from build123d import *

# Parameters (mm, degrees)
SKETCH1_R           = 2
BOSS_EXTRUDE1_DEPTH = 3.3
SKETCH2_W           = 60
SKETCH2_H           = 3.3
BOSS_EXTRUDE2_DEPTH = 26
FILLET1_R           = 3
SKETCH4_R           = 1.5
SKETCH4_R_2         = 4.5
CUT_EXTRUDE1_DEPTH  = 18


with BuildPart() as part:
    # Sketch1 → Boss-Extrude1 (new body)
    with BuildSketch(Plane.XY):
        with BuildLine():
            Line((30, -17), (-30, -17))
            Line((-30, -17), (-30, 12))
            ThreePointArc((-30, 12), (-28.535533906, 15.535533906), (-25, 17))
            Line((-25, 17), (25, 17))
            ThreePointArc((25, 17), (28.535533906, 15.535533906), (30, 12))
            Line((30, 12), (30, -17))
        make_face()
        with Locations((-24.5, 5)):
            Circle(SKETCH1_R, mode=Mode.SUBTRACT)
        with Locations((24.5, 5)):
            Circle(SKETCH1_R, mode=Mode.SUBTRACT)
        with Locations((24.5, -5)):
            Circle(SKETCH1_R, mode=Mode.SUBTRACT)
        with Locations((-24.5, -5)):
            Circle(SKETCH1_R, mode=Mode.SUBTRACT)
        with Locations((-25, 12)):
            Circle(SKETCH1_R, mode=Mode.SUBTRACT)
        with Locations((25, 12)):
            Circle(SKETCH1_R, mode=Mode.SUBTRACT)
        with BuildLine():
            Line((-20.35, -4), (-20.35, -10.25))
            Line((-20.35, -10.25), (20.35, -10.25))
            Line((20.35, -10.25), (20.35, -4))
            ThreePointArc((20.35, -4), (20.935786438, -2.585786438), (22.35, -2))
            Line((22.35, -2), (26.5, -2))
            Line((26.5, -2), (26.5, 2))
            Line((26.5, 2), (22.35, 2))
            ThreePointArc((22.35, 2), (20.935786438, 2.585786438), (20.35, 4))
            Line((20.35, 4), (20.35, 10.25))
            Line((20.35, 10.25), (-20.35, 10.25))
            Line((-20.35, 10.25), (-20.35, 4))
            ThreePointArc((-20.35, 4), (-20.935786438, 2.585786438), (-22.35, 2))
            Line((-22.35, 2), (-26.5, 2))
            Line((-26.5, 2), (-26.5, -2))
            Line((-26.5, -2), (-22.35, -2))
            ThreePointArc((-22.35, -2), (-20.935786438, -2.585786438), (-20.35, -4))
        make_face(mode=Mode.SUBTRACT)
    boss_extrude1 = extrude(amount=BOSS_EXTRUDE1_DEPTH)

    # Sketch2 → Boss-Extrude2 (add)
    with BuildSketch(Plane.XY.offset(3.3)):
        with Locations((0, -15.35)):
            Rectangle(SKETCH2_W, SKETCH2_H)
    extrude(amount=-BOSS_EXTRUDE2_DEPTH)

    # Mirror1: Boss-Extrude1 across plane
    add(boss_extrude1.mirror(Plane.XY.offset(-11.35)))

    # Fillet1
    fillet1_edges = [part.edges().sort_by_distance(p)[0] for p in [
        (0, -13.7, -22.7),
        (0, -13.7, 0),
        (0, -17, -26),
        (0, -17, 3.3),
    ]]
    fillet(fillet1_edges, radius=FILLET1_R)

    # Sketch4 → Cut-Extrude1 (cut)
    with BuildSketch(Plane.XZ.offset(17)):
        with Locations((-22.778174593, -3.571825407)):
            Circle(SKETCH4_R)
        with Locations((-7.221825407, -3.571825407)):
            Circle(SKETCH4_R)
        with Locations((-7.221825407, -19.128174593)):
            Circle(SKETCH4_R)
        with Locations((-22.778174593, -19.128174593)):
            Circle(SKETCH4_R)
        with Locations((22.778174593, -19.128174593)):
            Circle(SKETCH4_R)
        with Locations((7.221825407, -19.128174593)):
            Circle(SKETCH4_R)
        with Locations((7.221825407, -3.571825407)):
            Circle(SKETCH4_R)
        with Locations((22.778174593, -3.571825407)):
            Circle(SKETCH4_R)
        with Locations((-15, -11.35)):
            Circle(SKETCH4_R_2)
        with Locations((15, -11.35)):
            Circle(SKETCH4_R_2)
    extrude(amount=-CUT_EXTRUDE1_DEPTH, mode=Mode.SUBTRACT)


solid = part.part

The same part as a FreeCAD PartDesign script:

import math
import FreeCAD as App
import Part
import Sketcher
from FreeCAD import Vector
Q = App.Units.Quantity


def edges_at(feature, points):
    """Names of the edges that pass closest to the given points."""
    edges = feature.Shape.Edges
    near = lambda p: min(range(len(edges)), key=lambda i: edges[i].distToShape(Part.Vertex(*p))[0])
    return sorted({f"Edge{near(p) + 1}" for p in points})


def add_polygon(sketch, points):
    """Adds a closed chain of lines whose ends are joined by coincident constraints."""
    first, n = sketch.GeometryCount, len(points)
    for a, b in zip(points, points[1:] + points[:1]):
        sketch.addGeometry(Part.LineSegment(App.Vector(*a, 0), App.Vector(*b, 0)), False)
    for i in range(n):
        sketch.addConstraint(Sketcher.Constraint("Coincident", first + i, 2, first + (i + 1) % n, 1))

doc = App.newDocument("Part")
params = doc.addObject("Spreadsheet::Sheet", "Params")
for row, (alias, value) in enumerate([
    ("sketch1_diameter", "4 mm"),
    ("sketch1_radius", "5 mm"),
    ("sketch1_width", "60 mm"),
    ("sketch1_height", "29 mm"),
    ("sketch1_height2", "4 mm"),
    ("pad1_length", "3.3 mm"),
    ("sketch2_width", "60 mm"),
    ("sketch2_height", "3.3 mm"),
    ("pad2_length", "26 mm"),
    ("fillet_radius", "3 mm"),
    ("sketch3_diameter", "3 mm"),
    ("sketch3_diameter2", "9 mm"),
    ("pocket1_length", "18 mm"),
], start=1):
    params.set(f"A{row}", alias)
    params.set(f"B{row}", "=" + value)
    params.setAlias(f"B{row}", alias)

body = doc.addObject("PartDesign::Body", "Body")

sketch1 = body.newObject("Sketcher::SketchObject", "Sketch")
sketch1.AttachmentSupport = (doc.getObject("XY_Plane"), [""])
sketch1.MapMode = "FlatFace"
sketch1.addGeometry(Part.LineSegment(Vector(-30, -17, 0), Vector(30, -17, 0)), False)
sketch1.addGeometry(Part.LineSegment(Vector(30, -17, 0), Vector(30, 12, 0)), False)
sketch1.addGeometry(Part.ArcOfCircle(Part.Circle(Vector(25, 12, 0), Vector(0, 0, 1), 5), math.radians(0), math.radians(90)), False)
sketch1.addGeometry(Part.LineSegment(Vector(25, 17, 0), Vector(-25, 17, 0)), False)
sketch1.addGeometry(Part.ArcOfCircle(Part.Circle(Vector(-25, 12, 0), Vector(0, 0, 1), 5), math.radians(90), math.radians(180)), False)
sketch1.addGeometry(Part.LineSegment(Vector(-30, 12, 0), Vector(-30, -17, 0)), False)
sketch1.addGeometry(Part.Circle(Vector(24.5, -5, 0), Vector(0, 0, 1), 2), False)
sketch1.addGeometry(Part.Circle(Vector(-24.5, -5, 0), Vector(0, 0, 1), 2), False)
sketch1.addGeometry(Part.ArcOfCircle(Part.Circle(Vector(-22.35, -4, 0), Vector(0, 0, 1), 2), math.radians(0), math.radians(90)), False)
sketch1.addGeometry(Part.LineSegment(Vector(-22.35, -2, 0), Vector(-26.5, -2, 0)), False)
sketch1.addGeometry(Part.LineSegment(Vector(-26.5, -2, 0), Vector(-26.5, 2, 0)), False)
sketch1.addGeometry(Part.LineSegment(Vector(-26.5, 2, 0), Vector(-22.35, 2, 0)), False)
sketch1.addGeometry(Part.ArcOfCircle(Part.Circle(Vector(-22.35, 4, 0), Vector(0, 0, 1), 2), math.radians(-90), math.radians(0)), False)
sketch1.addGeometry(Part.LineSegment(Vector(-20.35, 4, 0), Vector(-20.35, 10.25, 0)), False)
sketch1.addGeometry(Part.LineSegment(Vector(-20.35, 10.25, 0), Vector(20.35, 10.25, 0)), False)
sketch1.addGeometry(Part.LineSegment(Vector(20.35, 10.25, 0), Vector(20.35, 4, 0)), False)
sketch1.addGeometry(Part.ArcOfCircle(Part.Circle(Vector(22.35, 4, 0), Vector(0, 0, 1), 2), math.radians(-180), math.radians(-90)), False)
sketch1.addGeometry(Part.LineSegment(Vector(22.35, 2, 0), Vector(26.5, 2, 0)), False)
sketch1.addGeometry(Part.LineSegment(Vector(26.5, 2, 0), Vector(26.5, -2, 0)), False)
sketch1.addGeometry(Part.LineSegment(Vector(26.5, -2, 0), Vector(22.35, -2, 0)), False)
sketch1.addGeometry(Part.ArcOfCircle(Part.Circle(Vector(22.35, -4, 0), Vector(0, 0, 1), 2), math.radians(90), math.radians(180)), False)
sketch1.addGeometry(Part.LineSegment(Vector(20.35, -4, 0), Vector(20.35, -10.25, 0)), False)
sketch1.addGeometry(Part.LineSegment(Vector(20.35, -10.25, 0), Vector(-20.35, -10.25, 0)), False)
sketch1.addGeometry(Part.LineSegment(Vector(-20.35, -10.25, 0), Vector(-20.35, -4, 0)), False)
sketch1.addGeometry(Part.Circle(Vector(24.5, 5, 0), Vector(0, 0, 1), 2), False)
sketch1.addGeometry(Part.Circle(Vector(25, 12, 0), Vector(0, 0, 1), 2), False)
sketch1.addGeometry(Part.Circle(Vector(-24.5, 5, 0), Vector(0, 0, 1), 2), False)
sketch1.addGeometry(Part.Circle(Vector(-25, 12, 0), Vector(0, 0, 1), 2), False)
sketch1.addConstraint(Sketcher.Constraint("Coincident", 0, 2, 1, 1))
sketch1.addConstraint(Sketcher.Constraint("Tangent", 1, 2, 2, 1))
sketch1.addConstraint(Sketcher.Constraint("Tangent", 2, 2, 3, 1))
sketch1.addConstraint(Sketcher.Constraint("Tangent", 3, 2, 4, 1))
sketch1.addConstraint(Sketcher.Constraint("Tangent", 4, 2, 5, 1))
sketch1.addConstraint(Sketcher.Constraint("Coincident", 5, 2, 0, 1))
sketch1.addConstraint(Sketcher.Constraint("Tangent", 8, 2, 9, 1))
sketch1.addConstraint(Sketcher.Constraint("Coincident", 9, 2, 10, 1))
sketch1.addConstraint(Sketcher.Constraint("Coincident", 10, 2, 11, 1))
sketch1.addConstraint(Sketcher.Constraint("Tangent", 11, 2, 12, 1))
sketch1.addConstraint(Sketcher.Constraint("Tangent", 12, 2, 13, 1))
sketch1.addConstraint(Sketcher.Constraint("Coincident", 13, 2, 14, 1))
sketch1.addConstraint(Sketcher.Constraint("Coincident", 14, 2, 15, 1))
sketch1.addConstraint(Sketcher.Constraint("Tangent", 15, 2, 16, 1))
sketch1.addConstraint(Sketcher.Constraint("Tangent", 16, 2, 17, 1))
sketch1.addConstraint(Sketcher.Constraint("Coincident", 17, 2, 18, 1))
sketch1.addConstraint(Sketcher.Constraint("Coincident", 18, 2, 19, 1))
sketch1.addConstraint(Sketcher.Constraint("Tangent", 19, 2, 20, 1))
sketch1.addConstraint(Sketcher.Constraint("Tangent", 20, 2, 21, 1))
sketch1.addConstraint(Sketcher.Constraint("Coincident", 21, 2, 22, 1))
sketch1.addConstraint(Sketcher.Constraint("Coincident", 22, 2, 23, 1))
sketch1.addConstraint(Sketcher.Constraint("Tangent", 23, 2, 8, 1))
sketch1.addConstraint(Sketcher.Constraint("Horizontal", 0))
sketch1.addConstraint(Sketcher.Constraint("Vertical", 1))
sketch1.addConstraint(Sketcher.Constraint("Horizontal", 3))
sketch1.addConstraint(Sketcher.Constraint("Vertical", 5))
sketch1.addConstraint(Sketcher.Constraint("Horizontal", 9))
sketch1.addConstraint(Sketcher.Constraint("Vertical", 10))
sketch1.addConstraint(Sketcher.Constraint("Horizontal", 11))
sketch1.addConstraint(Sketcher.Constraint("Vertical", 13))
sketch1.addConstraint(Sketcher.Constraint("Horizontal", 14))
sketch1.addConstraint(Sketcher.Constraint("Vertical", 15))
sketch1.addConstraint(Sketcher.Constraint("Horizontal", 17))
sketch1.addConstraint(Sketcher.Constraint("Vertical", 18))
sketch1.addConstraint(Sketcher.Constraint("Horizontal", 19))
sketch1.addConstraint(Sketcher.Constraint("Vertical", 21))
sketch1.addConstraint(Sketcher.Constraint("Horizontal", 22))
sketch1.addConstraint(Sketcher.Constraint("Vertical", 23))
sketch1.addConstraint(Sketcher.Constraint("Coincident", 25, 3, 2, 3))
sketch1.addConstraint(Sketcher.Constraint("Coincident", 27, 3, 4, 3))
sketch1.addConstraint(Sketcher.Constraint("Equal", 2, 4))
sketch1.addConstraint(Sketcher.Constraint("Equal", 6, 7))
sketch1.addConstraint(Sketcher.Constraint("Equal", 7, 8))
sketch1.addConstraint(Sketcher.Constraint("Equal", 8, 12))
sketch1.addConstraint(Sketcher.Constraint("Equal", 12, 16))
sketch1.addConstraint(Sketcher.Constraint("Equal", 16, 20))
sketch1.addConstraint(Sketcher.Constraint("Equal", 20, 24))
sketch1.addConstraint(Sketcher.Constraint("Equal", 24, 25))
sketch1.addConstraint(Sketcher.Constraint("Equal", 25, 26))
sketch1.addConstraint(Sketcher.Constraint("Equal", 26, 27))
sketch1.addConstraint(Sketcher.Constraint("Symmetric", 8, 3, 16, 3, -1, 1))
sketch1.addConstraint(Sketcher.Constraint("Symmetric", 12, 3, 20, 3, -1, 1))
sketch1.addConstraint(Sketcher.Constraint("Symmetric", 7, 3, 24, 3, -1, 1))
sketch1.addConstraint(Sketcher.Constraint("Symmetric", 6, 3, 26, 3, -1, 1))
sketch1.addConstraint(Sketcher.Constraint("Symmetric", 6, 3, 7, 3, -2))
sketch1.addConstraint(Sketcher.Constraint("Symmetric", 12, 3, 16, 3, -2))
sketch1.addConstraint(Sketcher.Constraint("Equal", 11, 17))
sketch1.addConstraint(Sketcher.Constraint("Equal", 15, 21))
sketch1.addConstraint(Sketcher.Constraint("Diameter", 6, Q("4 mm")))
sketch1.addConstraint(Sketcher.Constraint("Radius", 2, Q("5 mm")))
sketch1.addConstraint(Sketcher.Constraint("DistanceX", 0, 1, 0, 2, Q("60 mm")))
sketch1.addConstraint(Sketcher.Constraint("DistanceY", 1, 1, 1, 2, Q("29 mm")))
sketch1.addConstraint(Sketcher.Constraint("DistanceY", 10, 1, 10, 2, Q("4 mm")))
sketch1.addConstraint(Sketcher.Constraint("DistanceX", 14, 1, 14, 2, Q("40.7 mm")))
sketch1.addConstraint(Sketcher.Constraint("DistanceX", -1, 1, 2, 3, Q("25 mm")))
sketch1.addConstraint(Sketcher.Constraint("DistanceY", -1, 1, 2, 3, Q("12 mm")))
sketch1.addConstraint(Sketcher.Constraint("DistanceY", 6, 3, -1, 1, Q("5 mm")))
sketch1.addConstraint(Sketcher.Constraint("DistanceX", 7, 3, 6, 3, Q("49 mm")))
sketch1.addConstraint(Sketcher.Constraint("DistanceX", 9, 2, 7, 3, Q("2 mm")))
sketch1.addConstraint(Sketcher.Constraint("DistanceY", 13, 1, 13, 2, Q("6.25 mm")))
sketch1.setExpression("Constraints[58]", "Params.sketch1_diameter")
sketch1.setExpression("Constraints[59]", "Params.sketch1_radius")
sketch1.setExpression("Constraints[60]", "Params.sketch1_width")
sketch1.setExpression("Constraints[61]", "Params.sketch1_height")
sketch1.setExpression("Constraints[62]", "Params.sketch1_height2")
pad1 = body.newObject("PartDesign::Pad", "Pad")
pad1.Profile = sketch1
pad1.setExpression("Length", "Params.pad1_length")

sketch2 = body.newObject("Sketcher::SketchObject", "Sketch001")
sketch2.AttachmentSupport = (doc.getObject("XY_Plane"), [""])
sketch2.MapMode = "FlatFace"
sketch2.AttachmentOffset = App.Placement(Vector(0, 0, 3.3), App.Rotation())
add_polygon(sketch2, [(-30, -13.7), (-30, -17), (30, -17), (30, -13.7)])
sketch2.addConstraint(Sketcher.Constraint("Vertical", 0))
sketch2.addConstraint(Sketcher.Constraint("Horizontal", 1))
sketch2.addConstraint(Sketcher.Constraint("Vertical", 2))
sketch2.addConstraint(Sketcher.Constraint("Horizontal", 3))
sketch2.addConstraint(Sketcher.Constraint("DistanceX", 1, 1, 1, 2, Q("60 mm")))
sketch2.addConstraint(Sketcher.Constraint("DistanceY", 0, 2, 0, 1, Q("3.3 mm")))
sketch2.addConstraint(Sketcher.Constraint("DistanceX", 0, 2, -1, 1, Q("30 mm")))
sketch2.addConstraint(Sketcher.Constraint("DistanceY", 0, 2, -1, 1, Q("17 mm")))
sketch2.setExpression("Constraints[8]", "Params.sketch2_width")
sketch2.setExpression("Constraints[9]", "Params.sketch2_height")
pad2 = body.newObject("PartDesign::Pad", "Pad001")
pad2.Profile = sketch2
pad2.setExpression("Length", "Params.pad2_length")
pad2.Reversed = True
doc.recompute()

datumplane = body.newObject("PartDesign::Plane", "DatumPlane")
datumplane.AttachmentSupport = (doc.getObject("XY_Plane"), [""])
datumplane.MapMode = "FlatFace"
datumplane.AttachmentOffset = App.Placement(Vector(0, 0, -11.35), App.Rotation())
mirrored = body.newObject("PartDesign::Mirrored", "Mirrored")
mirrored.Originals = [pad1]
mirrored.MirrorPlane = (datumplane, [""])
body.Tip = mirrored
doc.recompute()

fillet = body.newObject("PartDesign::Fillet", "Fillet")
fillet.Base = (mirrored, edges_at(mirrored, [
    (0, -13.7, -22.7),
    (0, -13.7, 0),
    (0, -17, -26),
    (0, -17, 3.3),
]))
fillet.setExpression("Radius", "Params.fillet_radius")

sketch3 = body.newObject("Sketcher::SketchObject", "Sketch002")
sketch3.AttachmentSupport = (doc.getObject("XZ_Plane"), [""])
sketch3.MapMode = "FlatFace"
sketch3.AttachmentOffset = App.Placement(Vector(0, 0, 17), App.Rotation())
sketch3.addGeometry(Part.Circle(Vector(-22.778175, -3.571825, 0), Vector(0, 0, 1), 1.5), False)
sketch3.addGeometry(Part.Circle(Vector(-7.221825, -3.571825, 0), Vector(0, 0, 1), 1.5), False)
sketch3.addGeometry(Part.Circle(Vector(-7.221825, -19.128175, 0), Vector(0, 0, 1), 1.5), False)
sketch3.addGeometry(Part.Circle(Vector(-22.778175, -19.128175, 0), Vector(0, 0, 1), 1.5), False)
sketch3.addGeometry(Part.Circle(Vector(22.778175, -19.128175, 0), Vector(0, 0, 1), 1.5), False)
sketch3.addGeometry(Part.Circle(Vector(7.221825, -19.128175, 0), Vector(0, 0, 1), 1.5), False)
sketch3.addGeometry(Part.Circle(Vector(7.221825, -3.571825, 0), Vector(0, 0, 1), 1.5), False)
sketch3.addGeometry(Part.Circle(Vector(22.778175, -3.571825, 0), Vector(0, 0, 1), 1.5), False)
sketch3.addGeometry(Part.Circle(Vector(-15, -11.35, 0), Vector(0, 0, 1), 4.5), False)
sketch3.addGeometry(Part.Circle(Vector(15, -11.35, 0), Vector(0, 0, 1), 4.5), False)
sketch3.addConstraint(Sketcher.Constraint("Equal", 0, 1))
sketch3.addConstraint(Sketcher.Constraint("Equal", 1, 2))
sketch3.addConstraint(Sketcher.Constraint("Equal", 2, 3))
sketch3.addConstraint(Sketcher.Constraint("Equal", 3, 4))
sketch3.addConstraint(Sketcher.Constraint("Equal", 4, 5))
sketch3.addConstraint(Sketcher.Constraint("Equal", 5, 6))
sketch3.addConstraint(Sketcher.Constraint("Equal", 6, 7))
sketch3.addConstraint(Sketcher.Constraint("Equal", 8, 9))
sketch3.addConstraint(Sketcher.Constraint("Symmetric", 3, 3, 4, 3, -2))
sketch3.addConstraint(Sketcher.Constraint("Symmetric", 2, 3, 5, 3, -2))
sketch3.addConstraint(Sketcher.Constraint("Symmetric", 1, 3, 6, 3, -2))
sketch3.addConstraint(Sketcher.Constraint("Symmetric", 0, 3, 7, 3, -2))
sketch3.addConstraint(Sketcher.Constraint("Symmetric", 8, 3, 9, 3, -2))
sketch3.addConstraint(Sketcher.Constraint("Horizontal", 0, 3, 1, 3))
sketch3.addConstraint(Sketcher.Constraint("Horizontal", 2, 3, 3, 3))
sketch3.addConstraint(Sketcher.Constraint("Vertical", 1, 3, 2, 3))
sketch3.addConstraint(Sketcher.Constraint("Vertical", 0, 3, 3, 3))
sketch3.addConstraint(Sketcher.Constraint("Diameter", 0, Q("3 mm")))
sketch3.addConstraint(Sketcher.Constraint("Diameter", 8, Q("9 mm")))
sketch3.addConstraint(Sketcher.Constraint("DistanceX", 8, 3, -1, 1, Q("15 mm")))
sketch3.addConstraint(Sketcher.Constraint("DistanceX", 2, 3, 4, 3, Q("30 mm")))
sketch3.addConstraint(Sketcher.Constraint("DistanceY", 8, 3, -1, 1, Q("11.35 mm")))
sketch3.addConstraint(Sketcher.Constraint("DistanceX", 0, 3, 1, 3, Q("15.556349 mm")))
sketch3.addConstraint(Sketcher.Constraint("DistanceY", 2, 3, 1, 3, Q("15.556349 mm")))
sketch3.addConstraint(Sketcher.Constraint("DistanceY", 0, 3, -1, 1, Q("3.571825 mm")))
sketch3.setExpression("Constraints[17]", "Params.sketch3_diameter")
sketch3.setExpression("Constraints[18]", "Params.sketch3_diameter2")
pocket1 = body.newObject("PartDesign::Pocket", "Pocket")
pocket1.Profile = sketch3
pocket1.setExpression("Length", "Params.pocket1_length")

doc.recompute()
